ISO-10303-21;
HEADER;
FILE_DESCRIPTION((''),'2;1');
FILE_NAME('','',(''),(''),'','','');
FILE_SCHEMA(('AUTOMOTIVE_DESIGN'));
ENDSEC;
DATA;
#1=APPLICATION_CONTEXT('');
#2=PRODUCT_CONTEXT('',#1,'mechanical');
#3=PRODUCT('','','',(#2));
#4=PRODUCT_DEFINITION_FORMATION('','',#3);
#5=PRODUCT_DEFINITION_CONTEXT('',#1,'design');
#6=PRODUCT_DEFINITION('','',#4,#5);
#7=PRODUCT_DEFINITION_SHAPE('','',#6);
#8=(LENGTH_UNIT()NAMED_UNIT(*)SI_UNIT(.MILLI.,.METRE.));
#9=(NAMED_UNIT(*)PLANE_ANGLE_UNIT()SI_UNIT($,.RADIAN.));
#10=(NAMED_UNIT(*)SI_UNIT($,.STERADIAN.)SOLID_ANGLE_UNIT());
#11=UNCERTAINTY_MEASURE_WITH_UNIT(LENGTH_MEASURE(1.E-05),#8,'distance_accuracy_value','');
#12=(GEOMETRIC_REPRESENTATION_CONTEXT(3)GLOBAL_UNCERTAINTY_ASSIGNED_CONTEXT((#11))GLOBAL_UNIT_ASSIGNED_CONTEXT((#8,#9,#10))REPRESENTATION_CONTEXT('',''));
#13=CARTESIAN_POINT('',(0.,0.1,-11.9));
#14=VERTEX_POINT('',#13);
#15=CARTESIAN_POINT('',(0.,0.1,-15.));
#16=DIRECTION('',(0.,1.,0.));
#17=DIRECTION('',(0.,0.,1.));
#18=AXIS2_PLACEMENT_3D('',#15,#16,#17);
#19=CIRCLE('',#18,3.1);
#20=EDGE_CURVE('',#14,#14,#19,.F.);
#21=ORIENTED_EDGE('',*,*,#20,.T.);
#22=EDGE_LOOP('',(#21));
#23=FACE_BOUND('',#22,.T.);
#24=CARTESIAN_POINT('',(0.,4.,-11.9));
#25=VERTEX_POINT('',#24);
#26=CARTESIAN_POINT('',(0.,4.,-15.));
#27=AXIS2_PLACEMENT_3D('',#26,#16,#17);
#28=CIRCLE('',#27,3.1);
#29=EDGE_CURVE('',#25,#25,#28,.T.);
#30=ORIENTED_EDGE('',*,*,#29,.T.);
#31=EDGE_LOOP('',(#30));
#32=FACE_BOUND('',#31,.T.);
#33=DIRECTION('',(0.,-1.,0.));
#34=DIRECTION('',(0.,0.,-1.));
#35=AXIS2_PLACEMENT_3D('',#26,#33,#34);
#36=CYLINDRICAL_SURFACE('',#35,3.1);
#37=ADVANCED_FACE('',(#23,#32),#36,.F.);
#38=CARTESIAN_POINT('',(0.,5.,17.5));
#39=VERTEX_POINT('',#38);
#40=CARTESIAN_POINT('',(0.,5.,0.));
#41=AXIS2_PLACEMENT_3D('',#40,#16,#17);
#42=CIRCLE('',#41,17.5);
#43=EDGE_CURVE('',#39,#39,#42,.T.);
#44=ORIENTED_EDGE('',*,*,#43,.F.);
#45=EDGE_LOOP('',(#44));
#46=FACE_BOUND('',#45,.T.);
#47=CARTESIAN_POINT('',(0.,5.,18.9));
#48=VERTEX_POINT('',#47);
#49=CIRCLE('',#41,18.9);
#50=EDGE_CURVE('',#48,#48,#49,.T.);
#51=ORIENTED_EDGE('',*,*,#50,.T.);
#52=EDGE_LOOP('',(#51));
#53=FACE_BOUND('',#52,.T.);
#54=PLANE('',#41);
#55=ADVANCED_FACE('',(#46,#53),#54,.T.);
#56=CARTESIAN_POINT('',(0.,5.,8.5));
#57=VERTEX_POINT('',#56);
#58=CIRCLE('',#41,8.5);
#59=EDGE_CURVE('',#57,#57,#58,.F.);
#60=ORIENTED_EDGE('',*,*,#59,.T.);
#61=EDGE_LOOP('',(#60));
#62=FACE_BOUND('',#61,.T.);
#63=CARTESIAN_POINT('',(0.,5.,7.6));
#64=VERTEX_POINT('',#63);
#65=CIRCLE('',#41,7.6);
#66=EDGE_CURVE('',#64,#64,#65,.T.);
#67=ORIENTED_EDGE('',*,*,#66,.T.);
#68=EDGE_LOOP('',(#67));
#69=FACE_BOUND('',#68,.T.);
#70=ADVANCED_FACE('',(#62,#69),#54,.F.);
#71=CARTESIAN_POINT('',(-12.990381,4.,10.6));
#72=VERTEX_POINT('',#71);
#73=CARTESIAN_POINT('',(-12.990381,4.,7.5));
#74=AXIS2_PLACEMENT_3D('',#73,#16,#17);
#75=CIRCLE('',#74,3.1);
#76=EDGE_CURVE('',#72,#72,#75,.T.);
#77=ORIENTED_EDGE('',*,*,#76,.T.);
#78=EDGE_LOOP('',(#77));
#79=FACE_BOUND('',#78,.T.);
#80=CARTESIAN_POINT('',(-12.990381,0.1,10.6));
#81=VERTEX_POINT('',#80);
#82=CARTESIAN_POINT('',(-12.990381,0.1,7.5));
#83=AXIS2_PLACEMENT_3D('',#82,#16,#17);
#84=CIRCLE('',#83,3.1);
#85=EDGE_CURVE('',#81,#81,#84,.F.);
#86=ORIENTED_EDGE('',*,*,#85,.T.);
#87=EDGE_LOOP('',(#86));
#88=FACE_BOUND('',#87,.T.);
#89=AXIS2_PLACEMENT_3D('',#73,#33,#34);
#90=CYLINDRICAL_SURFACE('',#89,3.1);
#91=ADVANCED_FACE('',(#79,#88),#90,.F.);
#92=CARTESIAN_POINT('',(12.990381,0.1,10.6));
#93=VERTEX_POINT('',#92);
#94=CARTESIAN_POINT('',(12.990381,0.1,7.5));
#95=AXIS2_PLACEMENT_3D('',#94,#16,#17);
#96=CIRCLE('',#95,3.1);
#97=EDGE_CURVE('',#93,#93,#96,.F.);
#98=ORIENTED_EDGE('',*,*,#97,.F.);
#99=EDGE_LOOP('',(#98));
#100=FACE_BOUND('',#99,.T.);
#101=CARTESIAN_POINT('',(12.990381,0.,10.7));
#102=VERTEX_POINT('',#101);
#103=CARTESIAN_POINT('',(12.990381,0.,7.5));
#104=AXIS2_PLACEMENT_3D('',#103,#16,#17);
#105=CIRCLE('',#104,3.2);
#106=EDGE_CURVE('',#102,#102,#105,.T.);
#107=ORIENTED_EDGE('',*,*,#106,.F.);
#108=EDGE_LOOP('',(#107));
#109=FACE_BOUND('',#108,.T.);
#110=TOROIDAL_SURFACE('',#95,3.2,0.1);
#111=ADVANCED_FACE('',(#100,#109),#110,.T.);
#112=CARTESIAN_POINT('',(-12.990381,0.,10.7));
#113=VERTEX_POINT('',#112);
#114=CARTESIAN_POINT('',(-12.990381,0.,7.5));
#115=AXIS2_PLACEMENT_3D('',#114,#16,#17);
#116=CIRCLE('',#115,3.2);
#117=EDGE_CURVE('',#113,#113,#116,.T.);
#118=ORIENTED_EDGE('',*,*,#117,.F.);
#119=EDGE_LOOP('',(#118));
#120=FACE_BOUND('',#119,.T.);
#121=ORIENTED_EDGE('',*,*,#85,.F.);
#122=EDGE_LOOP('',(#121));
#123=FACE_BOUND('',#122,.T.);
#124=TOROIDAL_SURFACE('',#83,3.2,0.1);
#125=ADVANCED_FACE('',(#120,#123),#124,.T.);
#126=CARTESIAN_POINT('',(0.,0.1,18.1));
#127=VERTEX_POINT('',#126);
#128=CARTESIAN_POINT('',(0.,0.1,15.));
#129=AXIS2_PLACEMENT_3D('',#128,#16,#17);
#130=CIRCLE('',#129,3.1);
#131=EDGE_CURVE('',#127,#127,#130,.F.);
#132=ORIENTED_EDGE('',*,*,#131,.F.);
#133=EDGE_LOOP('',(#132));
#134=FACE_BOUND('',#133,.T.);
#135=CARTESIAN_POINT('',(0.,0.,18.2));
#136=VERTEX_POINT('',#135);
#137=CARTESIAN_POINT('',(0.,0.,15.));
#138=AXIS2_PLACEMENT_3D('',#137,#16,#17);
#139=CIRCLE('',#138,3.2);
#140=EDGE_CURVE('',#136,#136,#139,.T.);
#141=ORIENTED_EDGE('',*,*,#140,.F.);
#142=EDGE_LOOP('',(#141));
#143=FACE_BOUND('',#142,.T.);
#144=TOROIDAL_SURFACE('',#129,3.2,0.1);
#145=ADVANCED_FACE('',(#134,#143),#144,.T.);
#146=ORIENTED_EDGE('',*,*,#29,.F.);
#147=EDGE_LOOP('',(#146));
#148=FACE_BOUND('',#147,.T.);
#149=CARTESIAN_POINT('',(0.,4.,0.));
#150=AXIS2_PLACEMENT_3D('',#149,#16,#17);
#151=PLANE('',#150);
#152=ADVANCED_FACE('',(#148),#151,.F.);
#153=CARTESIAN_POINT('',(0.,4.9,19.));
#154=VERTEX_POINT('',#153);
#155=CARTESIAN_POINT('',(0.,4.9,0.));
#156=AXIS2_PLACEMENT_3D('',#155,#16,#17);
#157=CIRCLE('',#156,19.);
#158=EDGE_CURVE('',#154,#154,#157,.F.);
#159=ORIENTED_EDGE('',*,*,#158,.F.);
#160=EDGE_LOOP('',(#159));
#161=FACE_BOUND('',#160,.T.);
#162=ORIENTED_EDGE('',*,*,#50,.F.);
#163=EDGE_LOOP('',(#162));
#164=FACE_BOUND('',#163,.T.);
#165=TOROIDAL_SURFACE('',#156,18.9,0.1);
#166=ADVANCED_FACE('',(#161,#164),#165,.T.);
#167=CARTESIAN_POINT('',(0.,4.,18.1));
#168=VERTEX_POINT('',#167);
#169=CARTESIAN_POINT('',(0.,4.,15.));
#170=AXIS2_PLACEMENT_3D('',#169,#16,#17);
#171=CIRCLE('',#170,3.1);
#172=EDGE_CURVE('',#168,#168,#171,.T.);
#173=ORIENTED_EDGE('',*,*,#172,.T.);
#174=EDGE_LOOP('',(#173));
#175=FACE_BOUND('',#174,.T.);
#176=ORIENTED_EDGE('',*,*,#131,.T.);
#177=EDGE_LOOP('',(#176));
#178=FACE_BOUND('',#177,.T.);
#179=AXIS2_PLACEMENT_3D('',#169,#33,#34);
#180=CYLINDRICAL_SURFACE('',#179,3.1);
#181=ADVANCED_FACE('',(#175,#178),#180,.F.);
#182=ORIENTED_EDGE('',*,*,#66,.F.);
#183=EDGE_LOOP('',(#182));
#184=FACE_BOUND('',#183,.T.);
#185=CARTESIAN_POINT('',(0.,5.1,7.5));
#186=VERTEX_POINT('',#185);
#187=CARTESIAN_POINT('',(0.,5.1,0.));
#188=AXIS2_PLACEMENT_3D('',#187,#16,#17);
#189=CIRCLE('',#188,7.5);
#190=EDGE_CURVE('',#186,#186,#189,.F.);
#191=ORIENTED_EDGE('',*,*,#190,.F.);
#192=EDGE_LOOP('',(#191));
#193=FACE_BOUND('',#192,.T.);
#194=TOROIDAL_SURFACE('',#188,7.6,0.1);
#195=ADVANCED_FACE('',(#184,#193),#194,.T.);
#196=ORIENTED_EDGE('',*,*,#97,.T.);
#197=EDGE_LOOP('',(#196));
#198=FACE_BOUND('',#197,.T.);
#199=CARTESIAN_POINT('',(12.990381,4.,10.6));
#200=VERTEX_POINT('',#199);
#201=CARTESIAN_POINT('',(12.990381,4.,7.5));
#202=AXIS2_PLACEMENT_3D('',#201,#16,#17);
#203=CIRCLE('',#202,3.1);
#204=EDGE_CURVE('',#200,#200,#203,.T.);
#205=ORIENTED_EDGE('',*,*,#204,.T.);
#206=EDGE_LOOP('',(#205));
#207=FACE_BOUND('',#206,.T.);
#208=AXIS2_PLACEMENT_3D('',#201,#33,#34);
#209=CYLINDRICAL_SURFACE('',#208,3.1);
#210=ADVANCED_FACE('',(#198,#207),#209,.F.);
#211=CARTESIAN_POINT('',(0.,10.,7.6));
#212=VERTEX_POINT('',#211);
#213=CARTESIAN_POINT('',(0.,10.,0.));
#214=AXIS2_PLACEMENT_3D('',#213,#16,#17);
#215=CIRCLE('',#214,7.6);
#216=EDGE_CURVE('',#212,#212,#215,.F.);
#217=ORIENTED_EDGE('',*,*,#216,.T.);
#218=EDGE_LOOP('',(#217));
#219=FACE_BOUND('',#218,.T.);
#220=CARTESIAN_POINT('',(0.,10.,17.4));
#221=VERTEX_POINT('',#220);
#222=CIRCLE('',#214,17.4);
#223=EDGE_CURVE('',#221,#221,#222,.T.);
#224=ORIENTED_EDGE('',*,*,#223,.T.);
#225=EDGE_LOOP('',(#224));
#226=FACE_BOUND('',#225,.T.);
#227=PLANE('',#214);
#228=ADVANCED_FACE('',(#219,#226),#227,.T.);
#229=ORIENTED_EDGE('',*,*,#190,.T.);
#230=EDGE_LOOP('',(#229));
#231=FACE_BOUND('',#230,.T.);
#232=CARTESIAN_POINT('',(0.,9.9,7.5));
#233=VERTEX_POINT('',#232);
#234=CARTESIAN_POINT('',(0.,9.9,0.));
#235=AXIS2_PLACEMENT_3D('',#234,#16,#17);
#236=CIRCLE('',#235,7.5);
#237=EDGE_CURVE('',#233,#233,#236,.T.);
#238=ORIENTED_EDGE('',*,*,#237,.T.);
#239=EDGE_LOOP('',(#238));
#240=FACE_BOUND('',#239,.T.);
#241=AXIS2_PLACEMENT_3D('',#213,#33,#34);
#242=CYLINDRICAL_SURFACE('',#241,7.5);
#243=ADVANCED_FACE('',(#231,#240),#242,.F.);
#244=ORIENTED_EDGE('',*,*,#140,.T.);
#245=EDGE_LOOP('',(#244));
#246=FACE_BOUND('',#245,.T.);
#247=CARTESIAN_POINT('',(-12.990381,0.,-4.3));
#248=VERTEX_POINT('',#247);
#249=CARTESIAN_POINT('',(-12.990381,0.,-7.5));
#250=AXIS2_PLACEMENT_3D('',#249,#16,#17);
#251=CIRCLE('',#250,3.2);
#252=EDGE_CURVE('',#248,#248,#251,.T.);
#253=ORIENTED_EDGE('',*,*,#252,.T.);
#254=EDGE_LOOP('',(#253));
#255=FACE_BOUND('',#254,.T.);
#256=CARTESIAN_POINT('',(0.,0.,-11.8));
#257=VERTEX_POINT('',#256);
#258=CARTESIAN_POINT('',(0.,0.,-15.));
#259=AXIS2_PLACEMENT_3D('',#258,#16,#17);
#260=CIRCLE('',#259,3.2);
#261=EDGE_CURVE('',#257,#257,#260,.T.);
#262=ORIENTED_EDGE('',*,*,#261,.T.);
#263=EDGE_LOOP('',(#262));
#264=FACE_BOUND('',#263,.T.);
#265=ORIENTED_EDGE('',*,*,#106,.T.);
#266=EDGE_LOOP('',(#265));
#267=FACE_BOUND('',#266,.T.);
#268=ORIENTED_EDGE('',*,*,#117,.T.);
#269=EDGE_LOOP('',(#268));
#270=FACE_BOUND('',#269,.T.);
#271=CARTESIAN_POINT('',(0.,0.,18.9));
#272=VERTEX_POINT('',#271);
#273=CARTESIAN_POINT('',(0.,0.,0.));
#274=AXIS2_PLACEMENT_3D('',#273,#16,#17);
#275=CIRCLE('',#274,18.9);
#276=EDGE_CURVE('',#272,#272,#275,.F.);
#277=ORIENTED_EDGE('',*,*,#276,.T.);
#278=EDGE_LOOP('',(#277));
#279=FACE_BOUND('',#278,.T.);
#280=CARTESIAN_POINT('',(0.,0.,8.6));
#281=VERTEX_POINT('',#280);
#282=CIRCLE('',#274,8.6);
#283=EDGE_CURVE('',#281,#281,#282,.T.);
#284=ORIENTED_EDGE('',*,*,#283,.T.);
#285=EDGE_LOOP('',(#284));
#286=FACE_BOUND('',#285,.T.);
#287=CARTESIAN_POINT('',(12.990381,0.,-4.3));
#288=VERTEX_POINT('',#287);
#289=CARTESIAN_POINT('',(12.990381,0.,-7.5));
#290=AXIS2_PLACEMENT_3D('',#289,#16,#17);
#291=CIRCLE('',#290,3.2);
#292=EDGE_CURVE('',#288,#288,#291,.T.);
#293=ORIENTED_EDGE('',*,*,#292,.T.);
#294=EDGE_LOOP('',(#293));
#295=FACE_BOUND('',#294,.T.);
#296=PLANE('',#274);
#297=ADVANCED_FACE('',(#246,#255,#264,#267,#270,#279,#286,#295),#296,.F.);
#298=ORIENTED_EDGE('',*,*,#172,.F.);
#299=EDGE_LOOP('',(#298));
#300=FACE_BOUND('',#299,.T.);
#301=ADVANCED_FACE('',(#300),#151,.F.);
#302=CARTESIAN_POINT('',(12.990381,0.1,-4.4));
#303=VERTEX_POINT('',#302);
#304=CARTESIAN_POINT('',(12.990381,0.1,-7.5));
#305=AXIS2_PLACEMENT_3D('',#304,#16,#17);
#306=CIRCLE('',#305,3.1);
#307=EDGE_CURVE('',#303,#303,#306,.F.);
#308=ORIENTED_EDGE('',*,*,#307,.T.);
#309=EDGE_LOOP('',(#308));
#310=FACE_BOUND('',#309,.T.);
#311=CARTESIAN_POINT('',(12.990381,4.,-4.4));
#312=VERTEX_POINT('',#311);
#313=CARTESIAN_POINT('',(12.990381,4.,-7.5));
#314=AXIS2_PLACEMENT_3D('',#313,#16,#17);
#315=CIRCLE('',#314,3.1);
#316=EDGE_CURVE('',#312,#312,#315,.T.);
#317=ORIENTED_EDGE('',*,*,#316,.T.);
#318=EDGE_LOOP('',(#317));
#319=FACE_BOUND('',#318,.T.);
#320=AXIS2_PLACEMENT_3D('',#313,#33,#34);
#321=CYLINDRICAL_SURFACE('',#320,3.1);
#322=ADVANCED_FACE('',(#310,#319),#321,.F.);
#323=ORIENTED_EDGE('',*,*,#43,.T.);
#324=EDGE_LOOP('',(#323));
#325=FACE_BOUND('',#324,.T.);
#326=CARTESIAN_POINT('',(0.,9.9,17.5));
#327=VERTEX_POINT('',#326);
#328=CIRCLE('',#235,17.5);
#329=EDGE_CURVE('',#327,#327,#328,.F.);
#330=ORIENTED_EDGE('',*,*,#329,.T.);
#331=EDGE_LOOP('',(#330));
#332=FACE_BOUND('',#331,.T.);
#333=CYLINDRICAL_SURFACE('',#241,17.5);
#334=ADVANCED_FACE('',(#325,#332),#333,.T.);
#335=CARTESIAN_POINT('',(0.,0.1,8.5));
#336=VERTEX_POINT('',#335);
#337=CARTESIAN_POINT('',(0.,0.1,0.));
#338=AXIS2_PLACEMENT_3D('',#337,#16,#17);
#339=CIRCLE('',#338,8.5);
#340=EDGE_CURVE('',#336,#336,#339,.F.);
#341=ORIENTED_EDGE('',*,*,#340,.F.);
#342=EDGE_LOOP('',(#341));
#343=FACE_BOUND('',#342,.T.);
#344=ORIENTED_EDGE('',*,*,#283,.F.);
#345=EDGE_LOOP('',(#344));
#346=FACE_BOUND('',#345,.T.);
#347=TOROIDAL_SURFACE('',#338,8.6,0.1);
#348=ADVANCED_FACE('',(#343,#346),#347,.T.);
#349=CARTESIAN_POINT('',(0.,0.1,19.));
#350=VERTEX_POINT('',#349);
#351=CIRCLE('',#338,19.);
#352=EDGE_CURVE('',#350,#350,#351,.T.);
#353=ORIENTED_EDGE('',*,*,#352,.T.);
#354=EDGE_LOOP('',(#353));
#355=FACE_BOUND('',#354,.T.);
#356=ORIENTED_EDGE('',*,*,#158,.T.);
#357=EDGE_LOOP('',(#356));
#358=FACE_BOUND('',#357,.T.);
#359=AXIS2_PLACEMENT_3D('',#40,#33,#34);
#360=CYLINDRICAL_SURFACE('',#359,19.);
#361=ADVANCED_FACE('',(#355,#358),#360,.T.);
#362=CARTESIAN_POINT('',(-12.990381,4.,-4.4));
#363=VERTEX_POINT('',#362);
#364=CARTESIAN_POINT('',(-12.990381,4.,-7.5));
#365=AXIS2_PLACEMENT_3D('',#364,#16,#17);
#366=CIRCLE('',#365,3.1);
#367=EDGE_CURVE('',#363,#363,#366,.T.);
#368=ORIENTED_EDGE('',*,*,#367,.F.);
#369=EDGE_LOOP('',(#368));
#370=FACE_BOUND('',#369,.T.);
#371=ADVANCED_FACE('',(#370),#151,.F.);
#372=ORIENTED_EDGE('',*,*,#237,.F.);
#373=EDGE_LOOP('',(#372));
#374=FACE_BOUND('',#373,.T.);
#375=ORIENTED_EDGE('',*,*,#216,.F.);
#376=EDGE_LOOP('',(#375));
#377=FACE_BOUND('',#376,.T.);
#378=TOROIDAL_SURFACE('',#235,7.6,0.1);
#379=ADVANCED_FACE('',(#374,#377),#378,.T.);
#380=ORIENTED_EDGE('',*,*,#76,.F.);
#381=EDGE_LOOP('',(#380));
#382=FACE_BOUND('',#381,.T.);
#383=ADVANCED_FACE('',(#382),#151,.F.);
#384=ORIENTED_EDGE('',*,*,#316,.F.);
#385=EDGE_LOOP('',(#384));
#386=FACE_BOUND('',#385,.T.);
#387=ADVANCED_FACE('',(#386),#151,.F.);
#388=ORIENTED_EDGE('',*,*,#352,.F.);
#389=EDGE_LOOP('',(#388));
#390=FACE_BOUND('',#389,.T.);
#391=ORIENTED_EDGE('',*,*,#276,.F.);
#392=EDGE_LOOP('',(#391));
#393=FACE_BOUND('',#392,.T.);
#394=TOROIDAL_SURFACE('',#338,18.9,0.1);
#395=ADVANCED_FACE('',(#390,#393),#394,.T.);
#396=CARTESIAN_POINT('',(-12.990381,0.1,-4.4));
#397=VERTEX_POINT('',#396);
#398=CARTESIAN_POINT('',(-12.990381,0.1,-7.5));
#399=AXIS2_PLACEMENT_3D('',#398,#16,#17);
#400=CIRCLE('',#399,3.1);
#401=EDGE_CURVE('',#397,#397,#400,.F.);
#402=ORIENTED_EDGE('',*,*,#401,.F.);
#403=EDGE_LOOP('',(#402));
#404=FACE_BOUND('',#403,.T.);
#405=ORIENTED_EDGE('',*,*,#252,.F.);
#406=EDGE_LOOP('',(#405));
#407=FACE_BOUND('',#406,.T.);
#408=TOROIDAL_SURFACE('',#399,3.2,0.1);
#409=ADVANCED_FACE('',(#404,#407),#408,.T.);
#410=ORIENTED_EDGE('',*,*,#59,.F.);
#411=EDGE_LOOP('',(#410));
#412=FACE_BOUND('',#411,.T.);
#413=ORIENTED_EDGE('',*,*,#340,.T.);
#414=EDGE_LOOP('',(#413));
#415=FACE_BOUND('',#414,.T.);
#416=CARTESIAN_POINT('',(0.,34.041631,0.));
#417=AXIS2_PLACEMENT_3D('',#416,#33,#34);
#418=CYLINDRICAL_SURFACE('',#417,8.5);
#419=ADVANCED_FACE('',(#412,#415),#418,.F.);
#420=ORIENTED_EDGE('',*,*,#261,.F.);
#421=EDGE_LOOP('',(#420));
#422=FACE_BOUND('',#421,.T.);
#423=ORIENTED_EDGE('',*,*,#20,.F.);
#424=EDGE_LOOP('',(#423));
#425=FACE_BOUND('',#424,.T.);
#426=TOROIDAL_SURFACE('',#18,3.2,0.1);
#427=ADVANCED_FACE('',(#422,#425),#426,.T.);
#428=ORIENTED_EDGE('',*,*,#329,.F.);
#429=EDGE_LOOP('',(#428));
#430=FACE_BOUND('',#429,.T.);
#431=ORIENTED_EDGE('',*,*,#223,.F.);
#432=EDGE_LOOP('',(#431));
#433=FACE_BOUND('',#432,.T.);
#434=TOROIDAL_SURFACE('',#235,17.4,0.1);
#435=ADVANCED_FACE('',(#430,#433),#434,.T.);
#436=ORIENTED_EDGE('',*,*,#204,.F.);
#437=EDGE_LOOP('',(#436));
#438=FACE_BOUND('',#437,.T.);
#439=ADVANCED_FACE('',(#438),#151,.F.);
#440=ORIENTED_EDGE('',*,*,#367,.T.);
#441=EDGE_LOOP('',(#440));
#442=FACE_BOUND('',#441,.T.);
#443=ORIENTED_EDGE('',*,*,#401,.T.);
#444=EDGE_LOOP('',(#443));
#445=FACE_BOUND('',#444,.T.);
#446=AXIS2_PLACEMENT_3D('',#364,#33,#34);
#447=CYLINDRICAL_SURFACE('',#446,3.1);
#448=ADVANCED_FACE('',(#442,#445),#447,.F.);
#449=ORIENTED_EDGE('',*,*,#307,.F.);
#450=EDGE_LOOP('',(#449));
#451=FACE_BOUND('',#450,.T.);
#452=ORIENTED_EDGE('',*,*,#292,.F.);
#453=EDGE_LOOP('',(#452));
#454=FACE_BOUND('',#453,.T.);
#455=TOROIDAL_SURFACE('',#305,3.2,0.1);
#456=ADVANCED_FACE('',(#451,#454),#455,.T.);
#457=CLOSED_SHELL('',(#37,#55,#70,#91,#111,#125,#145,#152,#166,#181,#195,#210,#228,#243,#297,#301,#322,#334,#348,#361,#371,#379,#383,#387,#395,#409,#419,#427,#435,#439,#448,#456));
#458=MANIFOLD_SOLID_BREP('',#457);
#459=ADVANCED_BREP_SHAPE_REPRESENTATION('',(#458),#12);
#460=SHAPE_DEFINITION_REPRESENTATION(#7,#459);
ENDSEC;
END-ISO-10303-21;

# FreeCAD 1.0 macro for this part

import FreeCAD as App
import Part
import Sketcher
Q = App.Units.Quantity


def edges_at(feature, points):
    """Names of the edges that pass closest to the given points."""
    edges = feature.Shape.Edges
    near = lambda p: min(range(len(edges)), key=lambda i: edges[i].distToShape(Part.Vertex(*p))[0])
    return sorted({f"Edge{near(p) + 1}" for p in points})

doc = App.newDocument("Part")
body = doc.addObject("PartDesign::Body", "Body")

# Sketch on XZ plane
sketch1 = body.newObject("Sketcher::SketchObject", "Sketch")
sketch1.AttachmentSupport = (doc.getObject("XZ_Plane"), [""])
sketch1.MapMode = "FlatFace"
sketch1.addGeometry(Part.Circle(App.Vector(0, 0, 0), App.Vector(0, 0, 1), 19), False)
sketch1.addConstraint([
    Sketcher.Constraint("Coincident", 0, 3, -1, 1),
    Sketcher.Constraint("Diameter", 0, Q("38 mm")),
])
pad1 = body.newObject("PartDesign::Pad", "Pad")
pad1.Profile = sketch1
pad1.Length = 5
pad1.Reversed = True

# Sketch on XZ plane
sketch2 = body.newObject("Sketcher::SketchObject", "Sketch001")
sketch2.AttachmentSupport = (doc.getObject("XZ_Plane"), [""])
sketch2.MapMode = "FlatFace"
sketch2.addGeometry([
    Part.Circle(App.Vector(-12.990381, -7.5, 0), App.Vector(0, 0, 1), 3.1),  # 0
    Part.Circle(App.Vector(-12.990381, 7.5, 0), App.Vector(0, 0, 1), 3.1),  # 1
    Part.Circle(App.Vector(0, 15, 0), App.Vector(0, 0, 1), 3.1),  # 2
    Part.Circle(App.Vector(12.990381, 7.5, 0), App.Vector(0, 0, 1), 3.1),  # 3
    Part.Circle(App.Vector(12.990381, -7.5, 0), App.Vector(0, 0, 1), 3.1),  # 4
    Part.Circle(App.Vector(0, -15, 0), App.Vector(0, 0, 1), 3.1),  # 5
], False)
sketch2.addConstraint([
    Sketcher.Constraint("Equal", 0, 1),
    Sketcher.Constraint("Equal", 1, 2),
    Sketcher.Constraint("Equal", 2, 3),
    Sketcher.Constraint("Equal", 3, 4),
    Sketcher.Constraint("Equal", 4, 5),
    Sketcher.Constraint("Symmetric", 0, 3, 3, 3, -1, 1),
    Sketcher.Constraint("Symmetric", 1, 3, 4, 3, -1, 1),
    Sketcher.Constraint("Symmetric", 2, 3, 5, 3, -1, 1),
    Sketcher.Constraint("Symmetric", 1, 3, 3, 3, -2),
    Sketcher.Constraint("PointOnObject", 2, 3, -2),
    Sketcher.Constraint("Diameter", 0, Q("6.2 mm")),
    Sketcher.Constraint("DistanceY", -1, 1, 2, 3, Q("15 mm")),
    Sketcher.Constraint("DistanceY", 0, 3, 1, 3, Q("15 mm")),
    Sketcher.Constraint("DistanceX", 0, 3, -1, 1, Q("12.990381 mm")),
])
pocket1 = body.newObject("PartDesign::Pocket", "Pocket")
pocket1.Profile = sketch2
pocket1.Length = 4

# Sketch on XZ plane
sketch3 = body.newObject("Sketcher::SketchObject", "Sketch002")
sketch3.AttachmentSupport = (doc.getObject("XZ_Plane"), [""])
sketch3.MapMode = "FlatFace"
sketch3.AttachmentOffset = App.Placement(App.Vector(0, 0, -5), App.Rotation())
sketch3.addGeometry([
    Part.Circle(App.Vector(0, 0, 0), App.Vector(0, 0, 1), 17.5),
    Part.Circle(App.Vector(0, 0, 0), App.Vector(0, 0, 1), 7.5),
], False)
sketch3.addConstraint([
    Sketcher.Constraint("Coincident", 0, 3, -1, 1),
    Sketcher.Constraint("Coincident", 1, 3, -1, 1),
    Sketcher.Constraint("Diameter", 0, Q("35 mm")),
    Sketcher.Constraint("Diameter", 1, Q("15 mm")),
])
pad2 = body.newObject("PartDesign::Pad", "Pad001")
pad2.Profile = sketch3
pad2.Length = 5
pad2.Reversed = True

# Sketch on XZ plane
sketch4 = body.newObject("Sketcher::SketchObject", "Sketch003")
sketch4.AttachmentSupport = (doc.getObject("XZ_Plane"), [""])
sketch4.MapMode = "FlatFace"
sketch4.addGeometry(Part.Circle(App.Vector(0, 0, 0), App.Vector(0, 0, 1), 8.5), False)
sketch4.addConstraint([
    Sketcher.Constraint("Coincident", 0, 3, -1, 1),
    Sketcher.Constraint("Diameter", 0, Q("17 mm")),
])
pocket2 = body.newObject("PartDesign::Pocket", "Pocket001")
pocket2.Profile = sketch4
pocket2.Length = 5
doc.recompute()

fillet = body.newObject("PartDesign::Fillet", "Fillet")
fillet.Base = (pocket2, edges_at(pocket2, [
    (0, 0, -18.1),
    (12.99, 0, -10.6),
    (12.99, 0, 4.4),
    (0, 0, 11.9),
    (-12.99, 0, 4.4),
    (-12.99, 0, -10.6),
    (0, 0, -19),
    (0, 10, -17.5),
    (0, 10, -7.5),
    (0, 5, -7.5),
    (0, 0, 8.5),
    (0, 5, -19),
]))
fillet.Radius = 0.1

doc.recompute()
